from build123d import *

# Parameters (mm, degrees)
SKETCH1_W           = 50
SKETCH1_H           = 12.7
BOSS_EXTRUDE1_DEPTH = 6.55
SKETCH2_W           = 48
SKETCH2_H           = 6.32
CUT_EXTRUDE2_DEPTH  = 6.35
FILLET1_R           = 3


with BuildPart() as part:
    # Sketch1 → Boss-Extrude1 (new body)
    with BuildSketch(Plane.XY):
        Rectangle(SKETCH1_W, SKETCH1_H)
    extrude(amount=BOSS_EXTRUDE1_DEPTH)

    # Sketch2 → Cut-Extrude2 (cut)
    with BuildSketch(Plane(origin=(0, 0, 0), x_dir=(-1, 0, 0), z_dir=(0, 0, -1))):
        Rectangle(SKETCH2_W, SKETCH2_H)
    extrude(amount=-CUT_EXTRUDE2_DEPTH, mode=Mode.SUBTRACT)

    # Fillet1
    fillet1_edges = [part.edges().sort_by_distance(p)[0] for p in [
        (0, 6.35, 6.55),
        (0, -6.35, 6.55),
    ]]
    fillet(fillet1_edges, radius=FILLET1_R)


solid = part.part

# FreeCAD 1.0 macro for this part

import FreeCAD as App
import Part
import Sketcher
Q = App.Units.Quantity


def edges_at(feature, points):
    """Names of the edges that pass closest to the given points."""
    edges = feature.Shape.Edges
    near = lambda p: min(range(len(edges)), key=lambda i: edges[i].distToShape(Part.Vertex(*p))[0])
    return sorted({f"Edge{near(p) + 1}" for p in points})

doc = App.newDocument("Part")
body = doc.addObject("PartDesign::Body", "Body")

# Sketch on XY plane
sketch1 = body.newObject("Sketcher::SketchObject", "Sketch")
sketch1.AttachmentSupport = (doc.getObject("XY_Plane"), [""])
sketch1.MapMode = "FlatFace"
sketch1.addGeometry([
    Part.LineSegment(App.Vector(-25, 6, 0), App.Vector(-25, -6, 0)),
    Part.LineSegment(App.Vector(-25, -6, 0), App.Vector(25, -6, 0)),
    Part.LineSegment(App.Vector(25, -6, 0), App.Vector(25, 6, 0)),
    Part.LineSegment(App.Vector(25, 6, 0), App.Vector(-25, 6, 0)),
], False)
sketch1.addConstraint([
    Sketcher.Constraint("Coincident", 0, 2, 1, 1),
    Sketcher.Constraint("Coincident", 1, 2, 2, 1),
    Sketcher.Constraint("Coincident", 2, 2, 3, 1),
    Sketcher.Constraint("Coincident", 3, 2, 0, 1),
    Sketcher.Constraint("Vertical", 0),
    Sketcher.Constraint("Horizontal", 1),
    Sketcher.Constraint("Vertical", 2),
    Sketcher.Constraint("Horizontal", 3),
    Sketcher.Constraint("Symmetric", 0, 2, 2, 2, -1, 1),
    Sketcher.Constraint("DistanceX", 1, 1, 1, 2, Q("50 mm")),
    Sketcher.Constraint("DistanceY", 0, 2, 0, 1, Q("12.7 mm")),
])
pad1 = body.newObject("PartDesign::Pad", "Pad")
pad1.Profile = sketch1
pad1.Length = 6.55

# Sketch on XY plane
sketch2 = body.newObject("Sketcher::SketchObject", "Sketch001")
sketch2.AttachmentSupport = (doc.getObject("XY_Plane"), [""])
sketch2.MapMode = "FlatFace"
sketch2.addGeometry([
    Part.LineSegment(App.Vector(24, 3, 0), App.Vector(24, -3, 0)),
    Part.LineSegment(App.Vector(24, -3, 0), App.Vector(-24, -3, 0)),
    Part.LineSegment(App.Vector(-24, -3, 0), App.Vector(-24, 3, 0)),
    Part.LineSegment(App.Vector(-24, 3, 0), App.Vector(24, 3, 0)),
], False)
sketch2.addConstraint([
    Sketcher.Constraint("Coincident", 0, 2, 1, 1),
    Sketcher.Constraint("Coincident", 1, 2, 2, 1),
    Sketcher.Constraint("Coincident", 2, 2, 3, 1),
    Sketcher.Constraint("Coincident", 3, 2, 0, 1),
    Sketcher.Constraint("Vertical", 0),
    Sketcher.Constraint("Horizontal", 1),
    Sketcher.Constraint("Vertical", 2),
    Sketcher.Constraint("Horizontal", 3),
    Sketcher.Constraint("Symmetric", 0, 2, 2, 2, -1, 1),
    Sketcher.Constraint("DistanceX", 1, 2, 1, 1, Q("48 mm")),
    Sketcher.Constraint("DistanceY", 0, 2, 0, 1, Q("6.32 mm")),
])
pocket1 = body.newObject("PartDesign::Pocket", "Pocket")
pocket1.Profile = sketch2
pocket1.Length = 6.35
pocket1.Reversed = True
doc.recompute()

fillet = body.newObject("PartDesign::Fillet", "Fillet")
fillet.Base = (pocket1, edges_at(pocket1, [(0, 6.35, 6.55), (0, -6.35, 6.55)]))
fillet.Radius = 3

doc.recompute()
